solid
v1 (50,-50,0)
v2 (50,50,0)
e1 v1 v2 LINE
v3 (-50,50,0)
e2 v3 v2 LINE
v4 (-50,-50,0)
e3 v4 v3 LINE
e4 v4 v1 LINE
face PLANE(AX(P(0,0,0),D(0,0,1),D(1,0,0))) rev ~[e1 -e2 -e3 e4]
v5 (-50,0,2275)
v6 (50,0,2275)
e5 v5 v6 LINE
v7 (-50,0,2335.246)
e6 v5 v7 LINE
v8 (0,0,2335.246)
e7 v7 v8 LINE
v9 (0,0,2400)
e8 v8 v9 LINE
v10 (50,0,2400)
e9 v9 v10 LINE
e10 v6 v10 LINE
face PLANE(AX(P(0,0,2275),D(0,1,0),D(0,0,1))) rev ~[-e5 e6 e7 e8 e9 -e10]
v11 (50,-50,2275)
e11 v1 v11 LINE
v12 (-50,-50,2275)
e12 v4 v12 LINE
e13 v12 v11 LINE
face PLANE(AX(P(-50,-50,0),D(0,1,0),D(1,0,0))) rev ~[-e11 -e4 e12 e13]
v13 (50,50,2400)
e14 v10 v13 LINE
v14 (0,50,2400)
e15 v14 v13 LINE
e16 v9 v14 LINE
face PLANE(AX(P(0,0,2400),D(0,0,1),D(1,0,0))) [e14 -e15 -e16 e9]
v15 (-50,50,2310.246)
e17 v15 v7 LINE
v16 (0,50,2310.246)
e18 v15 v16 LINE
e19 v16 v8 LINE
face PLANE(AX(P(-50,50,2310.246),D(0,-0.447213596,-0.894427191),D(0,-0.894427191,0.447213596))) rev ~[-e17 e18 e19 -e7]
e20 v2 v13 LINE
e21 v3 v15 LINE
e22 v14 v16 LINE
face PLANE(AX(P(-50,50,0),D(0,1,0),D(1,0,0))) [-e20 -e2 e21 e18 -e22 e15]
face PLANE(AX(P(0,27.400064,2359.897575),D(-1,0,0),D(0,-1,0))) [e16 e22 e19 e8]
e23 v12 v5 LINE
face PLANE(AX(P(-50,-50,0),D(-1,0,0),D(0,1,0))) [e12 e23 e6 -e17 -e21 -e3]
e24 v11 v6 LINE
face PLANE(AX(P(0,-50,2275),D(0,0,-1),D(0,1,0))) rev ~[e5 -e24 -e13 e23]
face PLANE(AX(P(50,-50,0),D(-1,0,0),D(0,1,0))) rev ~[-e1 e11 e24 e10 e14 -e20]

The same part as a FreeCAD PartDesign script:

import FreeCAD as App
import Part
import Sketcher

V = App.Vector
Q = App.Units.Quantity

doc = App.newDocument("Part")
params = doc.addObject("Spreadsheet::Sheet", "Params")
for row, (alias, value) in enumerate([
    ("sketch1_width", "100 mm"),
    ("pad1_length", "2400 mm"),
    ("sketch2_width", "50 mm"),
    ("sketch2_height", "125 mm"),
    ("sketch3_width", "50 mm"),
    ("pocket2_length", "50 mm"),
], start=1):
    params.set(f"A{row}", alias)
    params.set(f"B{row}", "=" + value)
    params.setAlias(f"B{row}", alias)

body = doc.addObject("PartDesign::Body", "Body")

sketch1 = body.newObject("Sketcher::SketchObject", "Sketch")
sketch1.AttachmentSupport = (doc.getObject("XY_Plane"), [""])
sketch1.MapMode = "FlatFace"
sketch1.addGeometry([
    Part.LineSegment(V(-50, 50, 0), V(-50, -50, 0)),
    Part.LineSegment(V(-50, -50, 0), V(50, -50, 0)),
    Part.LineSegment(V(50, -50, 0), V(50, 50, 0)),
    Part.LineSegment(V(50, 50, 0), V(-50, 50, 0)),
], False)
sketch1.addConstraint([
    Sketcher.Constraint("Coincident", 0, 2, 1, 1),
    Sketcher.Constraint("Coincident", 1, 2, 2, 1),
    Sketcher.Constraint("Coincident", 2, 2, 3, 1),
    Sketcher.Constraint("Coincident", 3, 2, 0, 1),
    Sketcher.Constraint("Vertical", 0),
    Sketcher.Constraint("Horizontal", 1),
    Sketcher.Constraint("Vertical", 2),
    Sketcher.Constraint("Horizontal", 3),
    Sketcher.Constraint("Symmetric", 0, 2, 2, 2, -1, 1),
    Sketcher.Constraint("Equal", 3, 0),
    Sketcher.Constraint("DistanceX", 1, 1, 1, 2, Q("100 mm")),
])
sketch1.setExpression("Constraints[10]", "Params.sketch1_width")
pad1 = body.newObject("PartDesign::Pad", "Pad")
pad1.Profile = sketch1
pad1.setExpression("Length", "Params.pad1_length")

sketch2 = body.newObject("Sketcher::SketchObject", "Sketch001")
sketch2.AttachmentSupport = (doc.getObject("YZ_Plane"), [""])
sketch2.MapMode = "FlatFace"
sketch2.addGeometry([
    Part.LineSegment(V(-50, 2400, 0), V(-50, 2275, 0)),
    Part.LineSegment(V(-50, 2275, 0), V(0, 2275, 0)),
    Part.LineSegment(V(0, 2275, 0), V(0, 2400, 0)),
    Part.LineSegment(V(0, 2400, 0), V(-50, 2400, 0)),
], False)
sketch2.addConstraint([
    Sketcher.Constraint("Coincident", 0, 2, 1, 1),
    Sketcher.Constraint("Coincident", 1, 2, 2, 1),
    Sketcher.Constraint("Coincident", 2, 2, 3, 1),
    Sketcher.Constraint("Coincident", 3, 2, 0, 1),
    Sketcher.Constraint("Vertical", 0),
    Sketcher.Constraint("Horizontal", 1),
    Sketcher.Constraint("Vertical", 2),
    Sketcher.Constraint("Horizontal", 3),
    Sketcher.Constraint("PointOnObject", 1, 2, -2),
    Sketcher.Constraint("DistanceX", 1, 1, 1, 2, Q("50 mm")),
    Sketcher.Constraint("DistanceY", 0, 2, 0, 1, Q("125 mm")),
    Sketcher.Constraint("DistanceY", -1, 1, 0, 2, Q("2275 mm")),
])
sketch2.setExpression("Constraints[9]", "Params.sketch2_width")
sketch2.setExpression("Constraints[10]", "Params.sketch2_height")
pocket1 = body.newObject("PartDesign::Pocket", "Pocket")
pocket1.Profile = sketch2
pocket1.Type = "ThroughAll"
pocket1.Midplane = True

sketch3 = body.newObject("Sketcher::SketchObject", "Sketch002")
sketch3.AttachmentSupport = (doc.getObject("YZ_Plane"), [""])
sketch3.MapMode = "FlatFace"
sketch3.AttachmentOffset = App.Placement(V(0, 0, -50), App.Rotation())
sketch3.addGeometry([
    Part.LineSegment(V(0, 2400, 0), V(50, 2400, 0)),
    Part.LineSegment(V(50, 2400, 0), V(50, 2310, 0)),
    Part.LineSegment(V(50, 2310, 0), V(0, 2335, 0)),
    Part.LineSegment(V(0, 2335, 0), V(0, 2400, 0)),
], False)
sketch3.addConstraint([
    Sketcher.Constraint("Coincident", 0, 2, 1, 1),
    Sketcher.Constraint("Coincident", 1, 2, 2, 1),
    Sketcher.Constraint("Coincident", 2, 2, 3, 1),
    Sketcher.Constraint("Coincident", 3, 2, 0, 1),
    Sketcher.Constraint("Horizontal", 0),
    Sketcher.Constraint("Vertical", 1),
    Sketcher.Constraint("Vertical", 3),
    Sketcher.Constraint("PointOnObject", 2, 2, -2),
    Sketcher.Constraint("DistanceX", 0, 1, 0, 2, Q("50 mm")),
    Sketcher.Constraint("DistanceY", -1, 1, 0, 2, Q("2400 mm")),
    Sketcher.Constraint("DistanceY", 1, 2, 2, 2, Q("25 mm")),
    Sketcher.Constraint("DistanceY", 1, 2, 1, 1, Q("89.754 mm")),
])
sketch3.setExpression("Constraints[8]", "Params.sketch3_width")
pocket2 = body.newObject("PartDesign::Pocket", "Pocket001")
pocket2.Profile = sketch3
pocket2.setExpression("Length", "Params.pocket2_length")
pocket2.Reversed = True

doc.recompute()
